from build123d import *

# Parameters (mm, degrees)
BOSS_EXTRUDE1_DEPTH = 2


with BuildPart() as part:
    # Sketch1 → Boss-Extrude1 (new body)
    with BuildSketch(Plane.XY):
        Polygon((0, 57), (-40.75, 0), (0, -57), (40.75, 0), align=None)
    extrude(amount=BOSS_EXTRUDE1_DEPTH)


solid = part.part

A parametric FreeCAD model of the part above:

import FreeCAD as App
import Part
import Sketcher
from FreeCAD import Vector

doc = App.newDocument("Part")
params = doc.addObject("Spreadsheet::Sheet", "Params")
for row, (alias, value) in enumerate([
    ("pad1_length", "2 mm"),
], start=1):
    params.set(f"A{row}", alias)
    params.set(f"B{row}", "=" + value)
    params.setAlias(f"B{row}", alias)

body = doc.addObject("PartDesign::Body", "Body")

sketch1 = body.newObject("Sketcher::SketchObject", "Sketch")
sketch1.AttachmentSupport = (doc.getObject("XY_Plane"), [""])
sketch1.MapMode = "FlatFace"
sketch1.addGeometry([
    Part.LineSegment(Vector(0, 57, 0), Vector(-41, 0, 0)),
    Part.LineSegment(Vector(-41, 0, 0), Vector(0, -57, 0)),
    Part.LineSegment(Vector(0, -57, 0), Vector(41, 0, 0)),
    Part.LineSegment(Vector(41, 0, 0), Vector(0, 57, 0)),
], False)
sketch1.addConstraint([
    Sketcher.Constraint("Coincident", 0, 2, 1, 1),
    Sketcher.Constraint("Coincident", 1, 2, 2, 1),
    Sketcher.Constraint("Coincident", 2, 2, 3, 1),
    Sketcher.Constraint("Coincident", 3, 2, 0, 1),
    Sketcher.Constraint("Symmetric", 0, 2, 2, 2, -1, 1),
    Sketcher.Constraint("Symmetric", 1, 2, 3, 2, -1, 1),
    Sketcher.Constraint("PointOnObject", 0, 2, -1),
    Sketcher.Constraint("PointOnObject", 1, 2, -2),
    Sketcher.Constraint("DistanceY", 1, 2, -1, 1, 57.0),
    Sketcher.Constraint("DistanceX", 0, 2, 2, 2, 81.5),
])
pad1 = body.newObject("PartDesign::Pad", "Pad")
pad1.Profile = sketch1
pad1.setExpression("Length", "Params.pad1_length")

doc.recompute()
